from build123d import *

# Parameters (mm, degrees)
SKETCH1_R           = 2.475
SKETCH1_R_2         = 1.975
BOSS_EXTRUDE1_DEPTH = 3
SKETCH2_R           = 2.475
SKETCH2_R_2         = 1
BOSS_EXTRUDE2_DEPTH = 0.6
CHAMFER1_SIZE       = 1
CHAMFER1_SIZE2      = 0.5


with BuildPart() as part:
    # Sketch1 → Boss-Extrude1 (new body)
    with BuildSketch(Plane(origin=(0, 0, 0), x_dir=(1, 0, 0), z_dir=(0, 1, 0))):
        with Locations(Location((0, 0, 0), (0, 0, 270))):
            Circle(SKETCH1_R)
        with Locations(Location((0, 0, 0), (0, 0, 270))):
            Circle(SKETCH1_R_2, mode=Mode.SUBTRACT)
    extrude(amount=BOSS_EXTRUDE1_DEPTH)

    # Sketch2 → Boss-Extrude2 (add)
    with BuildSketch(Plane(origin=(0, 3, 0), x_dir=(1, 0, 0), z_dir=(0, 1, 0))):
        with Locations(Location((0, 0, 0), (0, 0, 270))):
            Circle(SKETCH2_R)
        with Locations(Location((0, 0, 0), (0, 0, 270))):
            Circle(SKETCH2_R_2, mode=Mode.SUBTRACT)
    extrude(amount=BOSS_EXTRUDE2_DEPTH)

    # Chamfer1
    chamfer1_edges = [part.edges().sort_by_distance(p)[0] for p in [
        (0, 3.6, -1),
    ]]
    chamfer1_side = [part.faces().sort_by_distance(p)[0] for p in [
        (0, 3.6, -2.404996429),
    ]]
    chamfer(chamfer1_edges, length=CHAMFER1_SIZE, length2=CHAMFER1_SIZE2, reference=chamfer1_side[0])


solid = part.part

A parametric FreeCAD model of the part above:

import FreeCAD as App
import Part
import Sketcher

V = App.Vector


def edges_at(feature, points):
    """Names of the edges that pass closest to the given points."""
    edges = feature.Shape.Edges
    near = lambda p: min(range(len(edges)), key=lambda i: edges[i].distToShape(Part.Vertex(*p))[0])
    return sorted({f"Edge{near(p) + 1}" for p in points})

doc = App.newDocument("Part")
body = doc.addObject("PartDesign::Body", "Body")

# Sketch on XZ plane
sketch1 = doc.addObject("Sketcher::SketchObject", "Sketch")
body.addObject(sketch1)
sketch1.AttachmentSupport = (doc.XZ_Plane, [""])
sketch1.MapMode = "FlatFace"
sketch1.addGeometry(Part.Circle(V(0, 0, 0), V(0, 0, 1), 2.475), False)
sketch1.addGeometry(Part.Circle(V(0, 0, 0), V(0, 0, 1), 1.975), False)
sketch1.addConstraint(Sketcher.Constraint("Coincident", 0, 3, -1, 1))
sketch1.addConstraint(Sketcher.Constraint("Coincident", 1, 3, -1, 1))
sketch1.addConstraint(Sketcher.Constraint("Diameter", 0, 4.95))
sketch1.addConstraint(Sketcher.Constraint("Diameter", 1, 3.95))
pad1 = doc.addObject("PartDesign::Pad", "Pad")
body.addObject(pad1)
pad1.Profile = sketch1
pad1.Length = 3
pad1.Reversed = True

# Sketch on XZ plane
sketch2 = doc.addObject("Sketcher::SketchObject", "Sketch001")
body.addObject(sketch2)
sketch2.AttachmentSupport = (doc.XZ_Plane, [""])
sketch2.MapMode = "FlatFace"
sketch2.AttachmentOffset = App.Placement(V(0, 0, -3), App.Rotation())
sketch2.addGeometry(Part.Circle(V(0, 0, 0), V(0, 0, 1), 2.475), False)
sketch2.addGeometry(Part.Circle(V(0, 0, 0), V(0, 0, 1), 1), False)
sketch2.addConstraint(Sketcher.Constraint("Coincident", 0, 3, -1, 1))
sketch2.addConstraint(Sketcher.Constraint("Coincident", 1, 3, -1, 1))
sketch2.addConstraint(Sketcher.Constraint("Diameter", 1, 2.0))
sketch2.addConstraint(Sketcher.Constraint("Diameter", 0, 4.95))
pad2 = doc.addObject("PartDesign::Pad", "Pad001")
body.addObject(pad2)
pad2.Profile = sketch2
pad2.Length = 0.6
pad2.Reversed = True
doc.recompute()

chamfer = doc.addObject("PartDesign::Chamfer", "Chamfer")
body.addObject(chamfer)
chamfer.Base = (pad2, edges_at(pad2, [(0, 3.6, -1)]))
chamfer.ChamferType = "Two distances"
chamfer.Size = 1
chamfer.Size2 = 0.5
chamfer.FlipDirection = True

doc.recompute()
